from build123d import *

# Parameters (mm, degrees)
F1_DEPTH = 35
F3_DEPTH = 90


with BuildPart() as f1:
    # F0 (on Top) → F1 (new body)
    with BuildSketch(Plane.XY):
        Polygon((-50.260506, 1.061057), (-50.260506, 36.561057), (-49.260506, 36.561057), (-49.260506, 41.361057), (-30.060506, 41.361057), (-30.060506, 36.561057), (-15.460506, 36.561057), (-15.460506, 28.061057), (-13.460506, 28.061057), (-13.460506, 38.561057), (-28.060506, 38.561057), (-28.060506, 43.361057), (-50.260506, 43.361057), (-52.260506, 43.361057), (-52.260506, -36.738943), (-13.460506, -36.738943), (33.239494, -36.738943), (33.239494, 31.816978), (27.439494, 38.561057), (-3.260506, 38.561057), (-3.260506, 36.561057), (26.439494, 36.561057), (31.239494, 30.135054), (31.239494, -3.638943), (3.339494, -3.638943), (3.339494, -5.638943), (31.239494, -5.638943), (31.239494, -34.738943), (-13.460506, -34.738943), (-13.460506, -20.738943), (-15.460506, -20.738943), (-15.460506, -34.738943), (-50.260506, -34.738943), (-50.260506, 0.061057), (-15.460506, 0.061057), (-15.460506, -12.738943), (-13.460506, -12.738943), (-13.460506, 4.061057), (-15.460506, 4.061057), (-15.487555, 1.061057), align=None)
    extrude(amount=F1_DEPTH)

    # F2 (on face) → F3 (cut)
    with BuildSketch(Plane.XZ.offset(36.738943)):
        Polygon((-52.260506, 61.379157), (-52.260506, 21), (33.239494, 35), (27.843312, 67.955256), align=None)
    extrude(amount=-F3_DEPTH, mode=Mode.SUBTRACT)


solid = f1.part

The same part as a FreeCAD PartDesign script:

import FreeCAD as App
import Part
import Sketcher

V = App.Vector

doc = App.newDocument("Part")
params = doc.addObject("Spreadsheet::Sheet", "Params")
for row, (alias, value) in enumerate([
    ("sketch1_width", "1 mm"),
    ("sketch1_width2", "2 mm"),
    ("sketch1_height", "14 mm"),
    ("sketch1_width3", "19.2 mm"),
    ("sketch1_width4", "14.6 mm"),
    ("pad1_length", "35 mm"),
    ("pocket1_length", "90 mm"),
], start=1):
    params.set(f"A{row}", alias)
    params.set(f"B{row}", "=" + value)
    params.setAlias(f"B{row}", alias)

body = doc.addObject("PartDesign::Body", "Body")

sketch1 = body.newObject("Sketcher::SketchObject", "Sketch")
sketch1.AttachmentSupport = (doc.getObject("XY_Plane"), [""])
sketch1.MapMode = "FlatFace"
sketch1.addGeometry([
    Part.LineSegment(V(-50.3, 1.1, 0), V(-50.3, 36.6, 0)),
    Part.LineSegment(V(-50.3, 36.6, 0), V(-49.3, 36.6, 0)),
    Part.LineSegment(V(-49.3, 36.6, 0), V(-49.3, 41.4, 0)),
    Part.LineSegment(V(-49.3, 41.4, 0), V(-30.1, 41.4, 0)),
    Part.LineSegment(V(-30.1, 41.4, 0), V(-30.1, 36.6, 0)),
    Part.LineSegment(V(-30.1, 36.6, 0), V(-15.5, 36.6, 0)),
    Part.LineSegment(V(-15.5, 36.6, 0), V(-15.5, 28.1, 0)),
    Part.LineSegment(V(-15.5, 28.1, 0), V(-13.5, 28.1, 0)),
    Part.LineSegment(V(-13.5, 28.1, 0), V(-13.5, 38.6, 0)),
    Part.LineSegment(V(-13.5, 38.6, 0), V(-28.1, 38.6, 0)),
    Part.LineSegment(V(-28.1, 38.6, 0), V(-28.1, 43.4, 0)),
    Part.LineSegment(V(-28.1, 43.4, 0), V(-52.3, 43.4, 0)),
    Part.LineSegment(V(-52.3, 43.4, 0), V(-52.3, -36.7, 0)),
    Part.LineSegment(V(-52.3, -36.7, 0), V(33.2, -36.7, 0)),
    Part.LineSegment(V(33.2, -36.7, 0), V(33.2, 31.8, 0)),
    Part.LineSegment(V(33.2, 31.8, 0), V(27.4, 38.6, 0)),
    Part.LineSegment(V(27.4, 38.6, 0), V(-3.3, 38.6, 0)),
    Part.LineSegment(V(-3.3, 38.6, 0), V(-3.3, 36.6, 0)),
    Part.LineSegment(V(-3.3, 36.6, 0), V(26.4, 36.6, 0)),
    Part.LineSegment(V(26.4, 36.6, 0), V(31.2, 30.1, 0)),
    Part.LineSegment(V(31.2, 30.1, 0), V(31.2, -3.6, 0)),
    Part.LineSegment(V(31.2, -3.6, 0), V(3.3, -3.6, 0)),
    Part.LineSegment(V(3.3, -3.6, 0), V(3.3, -5.6, 0)),
    Part.LineSegment(V(3.3, -5.6, 0), V(31.2, -5.6, 0)),
    Part.LineSegment(V(31.2, -5.6, 0), V(31.2, -34.7, 0)),
    Part.LineSegment(V(31.2, -34.7, 0), V(-13.5, -34.7, 0)),
    Part.LineSegment(V(-13.5, -34.7, 0), V(-13.5, -20.7, 0)),
    Part.LineSegment(V(-13.5, -20.7, 0), V(-15.5, -20.7, 0)),
    Part.LineSegment(V(-15.5, -20.7, 0), V(-15.5, -34.7, 0)),
    Part.LineSegment(V(-15.5, -34.7, 0), V(-50.3, -34.7, 0)),
    Part.LineSegment(V(-50.3, -34.7, 0), V(-50.3, 0.1, 0)),
    Part.LineSegment(V(-50.3, 0.1, 0), V(-15.5, 0.1, 0)),
    Part.LineSegment(V(-15.5, 0.1, 0), V(-15.5, -12.7, 0)),
    Part.LineSegment(V(-15.5, -12.7, 0), V(-13.5, -12.7, 0)),
    Part.LineSegment(V(-13.5, -12.7, 0), V(-13.5, 4.1, 0)),
    Part.LineSegment(V(-13.5, 4.1, 0), V(-15.5, 4.1, 0)),
    Part.LineSegment(V(-15.5, 4.1, 0), V(-15.5, 1.1, 0)),
    Part.LineSegment(V(-15.5, 1.1, 0), V(-50.3, 1.1, 0)),
], False)
sketch1.addConstraint([
    Sketcher.Constraint("Coincident", 0, 2, 1, 1),
    Sketcher.Constraint("Coincident", 1, 2, 2, 1),
    Sketcher.Constraint("Coincident", 2, 2, 3, 1),
    Sketcher.Constraint("Coincident", 3, 2, 4, 1),
    Sketcher.Constraint("Coincident", 4, 2, 5, 1),
    Sketcher.Constraint("Coincident", 5, 2, 6, 1),
    Sketcher.Constraint("Coincident", 6, 2, 7, 1),
    Sketcher.Constraint("Coincident", 7, 2, 8, 1),
    Sketcher.Constraint("Coincident", 8, 2, 9, 1),
    Sketcher.Constraint("Coincident", 9, 2, 10, 1),
    Sketcher.Constraint("Coincident", 10, 2, 11, 1),
    Sketcher.Constraint("Coincident", 11, 2, 12, 1),
    Sketcher.Constraint("Coincident", 12, 2, 13, 1),
    Sketcher.Constraint("Coincident", 13, 2, 14, 1),
    Sketcher.Constraint("Coincident", 14, 2, 15, 1),
    Sketcher.Constraint("Coincident", 15, 2, 16, 1),
    Sketcher.Constraint("Coincident", 16, 2, 17, 1),
    Sketcher.Constraint("Coincident", 17, 2, 18, 1),
    Sketcher.Constraint("Coincident", 18, 2, 19, 1),
    Sketcher.Constraint("Coincident", 19, 2, 20, 1),
    Sketcher.Constraint("Coincident", 20, 2, 21, 1),
    Sketcher.Constraint("Coincident", 21, 2, 22, 1),
    Sketcher.Constraint("Coincident", 22, 2, 23, 1),
    Sketcher.Constraint("Coincident", 23, 2, 24, 1),
    Sketcher.Constraint("Coincident", 24, 2, 25, 1),
    Sketcher.Constraint("Coincident", 25, 2, 26, 1),
    Sketcher.Constraint("Coincident", 26, 2, 27, 1),
    Sketcher.Constraint("Coincident", 27, 2, 28, 1),
    Sketcher.Constraint("Coincident", 28, 2, 29, 1),
    Sketcher.Constraint("Coincident", 29, 2, 30, 1),
    Sketcher.Constraint("Coincident", 30, 2, 31, 1),
    Sketcher.Constraint("Coincident", 31, 2, 32, 1),
    Sketcher.Constraint("Coincident", 32, 2, 33, 1),
    Sketcher.Constraint("Coincident", 33, 2, 34, 1),
    Sketcher.Constraint("Coincident", 34, 2, 35, 1),
    Sketcher.Constraint("Coincident", 35, 2, 36, 1),
    Sketcher.Constraint("Coincident", 36, 2, 37, 1),
    Sketcher.Constraint("Coincident", 37, 2, 0, 1),
    Sketcher.Constraint("Vertical", 0),
    Sketcher.Constraint("Horizontal", 1),
    Sketcher.Constraint("Vertical", 2),
    Sketcher.Constraint("Horizontal", 3),
    Sketcher.Constraint("Vertical", 4),
    Sketcher.Constraint("Horizontal", 5),
    Sketcher.Constraint("Vertical", 6),
    Sketcher.Constraint("Horizontal", 7),
    Sketcher.Constraint("Vertical", 8),
    Sketcher.Constraint("Horizontal", 9),
    Sketcher.Constraint("Vertical", 10),
    Sketcher.Constraint("Horizontal", 11),
    Sketcher.Constraint("Vertical", 12),
    Sketcher.Constraint("Horizontal", 13),
    Sketcher.Constraint("Vertical", 14),
    Sketcher.Constraint("Horizontal", 16),
    Sketcher.Constraint("Vertical", 17),
    Sketcher.Constraint("Horizontal", 18),
    Sketcher.Constraint("Vertical", 20),
    Sketcher.Constraint("Horizontal", 21),
    Sketcher.Constraint("Vertical", 22),
    Sketcher.Constraint("Horizontal", 23),
    Sketcher.Constraint("Vertical", 24),
    Sketcher.Constraint("Horizontal", 25),
    Sketcher.Constraint("Vertical", 26),
    Sketcher.Constraint("Horizontal", 27),
    Sketcher.Constraint("Vertical", 28),
    Sketcher.Constraint("Horizontal", 29),
    Sketcher.Constraint("Vertical", 30),
    Sketcher.Constraint("Horizontal", 31),
    Sketcher.Constraint("Vertical", 32),
    Sketcher.Constraint("Horizontal", 33),
    Sketcher.Constraint("Vertical", 34),
    Sketcher.Constraint("Horizontal", 35),
    Sketcher.Constraint("Horizontal", 37),
    Sketcher.Constraint("Horizontal", 1, 2, 4, 2),
    Sketcher.Constraint("Horizontal", 9, 2, 15, 2),
    Sketcher.Constraint("Horizontal", 5, 2, 17, 2),
    Sketcher.Constraint("Horizontal", 25, 2, 28, 2),
    Sketcher.Constraint("Vertical", 20, 2, 23, 2),
    Sketcher.Constraint("Vertical", 8, 2, 25, 2),
    Sketcher.Constraint("Vertical", 6, 2, 27, 2),
    Sketcher.Constraint("Vertical", 0, 2, 29, 2),
    Sketcher.Constraint("Vertical", 28, 2, 31, 2),
    Sketcher.Constraint("Vertical", 26, 2, 33, 2),
    Sketcher.Constraint("Vertical", 32, 2, 35, 2),
    Sketcher.Constraint("Equal", 5, 9),
    Sketcher.Constraint("Equal", 4, 10),
    Sketcher.Constraint("Equal", 35, 17),
    Sketcher.Constraint("Equal", 17, 22),
    Sketcher.Constraint("Equal", 31, 30),
    Sketcher.Constraint("DistanceX", 1, 1, 1, 2, 1.0),
    Sketcher.Constraint("DistanceX", 7, 1, 7, 2, 2.0),
    Sketcher.Constraint("DistanceY", 26, 1, 26, 2, 14.0),
    Sketcher.Constraint("DistanceX", 3, 1, 3, 2, 19.2),
    Sketcher.Constraint("DistanceX", 5, 1, 5, 2, 14.6),
    Sketcher.Constraint("DistanceX", 11, 2, 11, 1, 24.2),
    Sketcher.Constraint("DistanceX", 13, 1, 13, 2, 85.5),
    Sketcher.Constraint("DistanceX", 16, 2, 16, 1, 30.7),
    Sketcher.Constraint("DistanceX", 18, 1, 18, 2, 29.7),
    Sketcher.Constraint("DistanceX", 21, 2, 21, 1, 27.9),
    Sketcher.Constraint("DistanceX", 25, 2, 25, 1, 44.7),
    Sketcher.Constraint("DistanceY", 0, 1, 0, 2, 35.5),
    Sketcher.Constraint("DistanceY", 2, 1, 2, 2, 4.8),
    Sketcher.Constraint("DistanceY", 6, 2, 6, 1, 8.5),
    Sketcher.Constraint("DistanceY", 12, 2, 12, 1, 80.1),
    Sketcher.Constraint("DistanceY", 24, 2, 24, 1, 29.1),
    Sketcher.Constraint("DistanceY", 32, 2, 32, 1, 12.8),
    Sketcher.Constraint("DistanceY", 34, 1, 34, 2, 16.8),
    Sketcher.Constraint("DistanceY", 13, 2, 24, 2, 2.0),
    Sketcher.Constraint("DistanceX", 15, 2, 14, 2, 5.8),
    Sketcher.Constraint("DistanceX", 37, 2, 37, 1, 34.772951),
    Sketcher.Constraint("DistanceY", 14, 1, 14, 2, 68.555921),
    Sketcher.Constraint("DistanceY", 20, 2, 20, 1, 33.773997),
    Sketcher.Constraint("DistanceX", 0, 2, -1, 1, 50.260506),
    Sketcher.Constraint("DistanceY", -1, 1, 0, 2, 36.561057),
])
sketch1.setExpression("Constraints[89]", "Params.sketch1_width")
sketch1.setExpression("Constraints[90]", "Params.sketch1_width2")
sketch1.setExpression("Constraints[91]", "Params.sketch1_height")
sketch1.setExpression("Constraints[92]", "Params.sketch1_width3")
sketch1.setExpression("Constraints[93]", "Params.sketch1_width4")
pad1 = body.newObject("PartDesign::Pad", "Pad")
pad1.Profile = sketch1
pad1.setExpression("Length", "Params.pad1_length")

sketch2 = body.newObject("Sketcher::SketchObject", "Sketch001")
sketch2.AttachmentSupport = (doc.getObject("XZ_Plane"), [""])
sketch2.MapMode = "FlatFace"
sketch2.AttachmentOffset = App.Placement(V(0, 0, 36.738943), App.Rotation())
sketch2.addGeometry([
    Part.LineSegment(V(-52, 61, 0), V(-52, 21, 0)),
    Part.LineSegment(V(-52, 21, 0), V(33, 35, 0)),
    Part.LineSegment(V(33, 35, 0), V(28, 68, 0)),
    Part.LineSegment(V(28, 68, 0), V(-52, 61, 0)),
], False)
sketch2.addConstraint([
    Sketcher.Constraint("Coincident", 0, 2, 1, 1),
    Sketcher.Constraint("Coincident", 1, 2, 2, 1),
    Sketcher.Constraint("Coincident", 2, 2, 3, 1),
    Sketcher.Constraint("Coincident", 3, 2, 0, 1),
    Sketcher.Constraint("Vertical", 0),
    Sketcher.Constraint("Perpendicular", 1, 2),
    Sketcher.Constraint("DistanceY", -1, 1, 0, 2, 21.0),
    Sketcher.Constraint("DistanceY", -1, 1, 1, 2, 35.0),
    Sketcher.Constraint("DistanceX", 0, 2, 1, 2, 85.5),
    Sketcher.Constraint("DistanceY", 3, 2, 2, 2, 6.576099),
    Sketcher.Constraint("DistanceY", 0, 2, 0, 1, 40.379157),
    Sketcher.Constraint("DistanceX", 0, 2, -1, 1, 52.260506),
])
pocket1 = body.newObject("PartDesign::Pocket", "Pocket")
pocket1.Profile = sketch2
pocket1.setExpression("Length", "Params.pocket1_length")

doc.recompute()
